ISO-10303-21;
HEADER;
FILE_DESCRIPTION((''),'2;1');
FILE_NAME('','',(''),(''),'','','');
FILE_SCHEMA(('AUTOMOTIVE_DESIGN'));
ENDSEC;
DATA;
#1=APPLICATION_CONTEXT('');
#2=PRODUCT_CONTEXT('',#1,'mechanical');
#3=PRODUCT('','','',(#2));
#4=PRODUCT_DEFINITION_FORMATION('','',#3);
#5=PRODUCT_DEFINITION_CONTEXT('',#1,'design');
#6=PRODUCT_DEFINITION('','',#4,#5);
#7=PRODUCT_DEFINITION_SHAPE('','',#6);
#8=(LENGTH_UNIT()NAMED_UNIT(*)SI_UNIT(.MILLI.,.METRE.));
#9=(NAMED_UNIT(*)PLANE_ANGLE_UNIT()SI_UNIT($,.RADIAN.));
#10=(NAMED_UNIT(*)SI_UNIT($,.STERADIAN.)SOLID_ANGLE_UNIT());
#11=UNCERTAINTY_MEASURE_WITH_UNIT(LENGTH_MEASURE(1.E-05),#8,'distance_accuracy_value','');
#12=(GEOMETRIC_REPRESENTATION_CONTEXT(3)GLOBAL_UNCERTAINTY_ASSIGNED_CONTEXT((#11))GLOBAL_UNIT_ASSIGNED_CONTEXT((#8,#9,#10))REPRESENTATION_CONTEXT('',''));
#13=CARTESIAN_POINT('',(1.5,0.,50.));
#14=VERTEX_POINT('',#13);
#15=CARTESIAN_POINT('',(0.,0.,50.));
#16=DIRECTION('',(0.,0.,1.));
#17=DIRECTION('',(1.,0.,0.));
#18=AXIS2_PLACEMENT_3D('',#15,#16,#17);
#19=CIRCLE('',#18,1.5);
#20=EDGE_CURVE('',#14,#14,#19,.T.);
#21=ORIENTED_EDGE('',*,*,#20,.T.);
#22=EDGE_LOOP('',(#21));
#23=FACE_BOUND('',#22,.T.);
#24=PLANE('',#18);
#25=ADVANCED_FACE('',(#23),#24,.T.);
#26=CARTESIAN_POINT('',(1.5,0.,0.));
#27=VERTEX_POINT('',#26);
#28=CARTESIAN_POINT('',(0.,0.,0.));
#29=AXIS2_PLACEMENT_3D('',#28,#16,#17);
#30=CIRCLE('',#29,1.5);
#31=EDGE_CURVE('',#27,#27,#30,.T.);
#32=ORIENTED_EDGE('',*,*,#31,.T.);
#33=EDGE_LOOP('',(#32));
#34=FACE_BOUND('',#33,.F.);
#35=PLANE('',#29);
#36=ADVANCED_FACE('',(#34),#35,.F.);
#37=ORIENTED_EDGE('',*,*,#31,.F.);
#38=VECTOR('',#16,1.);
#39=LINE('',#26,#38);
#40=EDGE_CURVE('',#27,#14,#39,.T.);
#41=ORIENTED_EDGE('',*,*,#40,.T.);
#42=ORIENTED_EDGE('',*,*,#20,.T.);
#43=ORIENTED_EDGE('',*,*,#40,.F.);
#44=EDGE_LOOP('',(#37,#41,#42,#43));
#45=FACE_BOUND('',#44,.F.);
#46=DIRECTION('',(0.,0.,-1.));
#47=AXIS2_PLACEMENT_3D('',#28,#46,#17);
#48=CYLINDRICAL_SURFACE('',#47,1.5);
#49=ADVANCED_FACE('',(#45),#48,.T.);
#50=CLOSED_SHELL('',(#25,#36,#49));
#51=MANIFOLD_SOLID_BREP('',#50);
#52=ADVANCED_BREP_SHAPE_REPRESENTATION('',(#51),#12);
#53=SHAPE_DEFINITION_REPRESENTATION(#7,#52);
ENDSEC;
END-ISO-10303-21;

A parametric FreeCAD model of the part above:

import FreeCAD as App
import Part
import Sketcher

V = App.Vector
Q = App.Units.Quantity

doc = App.newDocument("Part")
body = doc.addObject("PartDesign::Body", "Body")

sketch1 = body.newObject("Sketcher::SketchObject", "Sketch")
sketch1.AttachmentSupport = (doc.getObject("XY_Plane"), [""])
sketch1.MapMode = "FlatFace"
sketch1.addGeometry(Part.Circle(V(0, 0, 0), V(0, 0, 1), 1.5), False)
sketch1.addConstraint([
    Sketcher.Constraint("Coincident", 0, 3, -1, 1),
    Sketcher.Constraint("Diameter", 0, Q("3 mm")),
])
pad1 = body.newObject("PartDesign::Pad", "Pad")
pad1.Profile = sketch1
pad1.Length = 50

doc.recompute()
